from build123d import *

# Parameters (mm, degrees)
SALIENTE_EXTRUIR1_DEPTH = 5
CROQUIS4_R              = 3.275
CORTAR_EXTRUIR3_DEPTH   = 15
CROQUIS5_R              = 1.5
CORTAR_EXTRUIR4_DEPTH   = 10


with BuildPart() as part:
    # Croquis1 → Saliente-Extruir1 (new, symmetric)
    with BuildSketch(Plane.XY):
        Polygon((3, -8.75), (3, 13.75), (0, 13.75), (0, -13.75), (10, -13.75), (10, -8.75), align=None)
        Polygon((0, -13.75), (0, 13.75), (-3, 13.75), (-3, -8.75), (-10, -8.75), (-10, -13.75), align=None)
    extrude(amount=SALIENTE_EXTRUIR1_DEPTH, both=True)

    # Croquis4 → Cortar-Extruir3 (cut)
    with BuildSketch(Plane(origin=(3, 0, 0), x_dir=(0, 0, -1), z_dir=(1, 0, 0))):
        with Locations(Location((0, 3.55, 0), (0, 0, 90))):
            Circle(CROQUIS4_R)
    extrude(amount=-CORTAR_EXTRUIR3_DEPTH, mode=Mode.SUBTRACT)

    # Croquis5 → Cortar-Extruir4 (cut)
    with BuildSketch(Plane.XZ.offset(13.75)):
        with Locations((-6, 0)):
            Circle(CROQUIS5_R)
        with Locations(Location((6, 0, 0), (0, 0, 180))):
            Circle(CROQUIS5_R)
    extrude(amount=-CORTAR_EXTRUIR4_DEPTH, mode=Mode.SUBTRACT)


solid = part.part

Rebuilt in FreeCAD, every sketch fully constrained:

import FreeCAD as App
import Part
import Sketcher
from FreeCAD import Vector
Q = App.Units.Quantity

doc = App.newDocument("Part")
body = doc.addObject("PartDesign::Body", "Body")

sketch1 = body.newObject("Sketcher::SketchObject", "Sketch")
sketch1.AttachmentSupport = (doc.getObject("XY_Plane"), [""])
sketch1.MapMode = "FlatFace"
sketch1.addGeometry([
    Part.LineSegment(Vector(3, -9, 0), Vector(3, 14, 0)),
    Part.LineSegment(Vector(3, 14, 0), Vector(-3, 14, 0)),
    Part.LineSegment(Vector(-3, 14, 0), Vector(-3, -9, 0)),
    Part.LineSegment(Vector(-3, -9, 0), Vector(-10, -9, 0)),
    Part.LineSegment(Vector(-10, -9, 0), Vector(-10, -14, 0)),
    Part.LineSegment(Vector(-10, -14, 0), Vector(10, -14, 0)),
    Part.LineSegment(Vector(10, -14, 0), Vector(10, -9, 0)),
    Part.LineSegment(Vector(10, -9, 0), Vector(3, -9, 0)),
], False)
sketch1.addConstraint([
    Sketcher.Constraint("Coincident", 0, 2, 1, 1),
    Sketcher.Constraint("Coincident", 1, 2, 2, 1),
    Sketcher.Constraint("Coincident", 2, 2, 3, 1),
    Sketcher.Constraint("Coincident", 3, 2, 4, 1),
    Sketcher.Constraint("Coincident", 4, 2, 5, 1),
    Sketcher.Constraint("Coincident", 5, 2, 6, 1),
    Sketcher.Constraint("Coincident", 6, 2, 7, 1),
    Sketcher.Constraint("Coincident", 7, 2, 0, 1),
    Sketcher.Constraint("Vertical", 0),
    Sketcher.Constraint("Horizontal", 1),
    Sketcher.Constraint("Vertical", 2),
    Sketcher.Constraint("Horizontal", 3),
    Sketcher.Constraint("Vertical", 4),
    Sketcher.Constraint("Horizontal", 5),
    Sketcher.Constraint("Vertical", 6),
    Sketcher.Constraint("Horizontal", 7),
    Sketcher.Constraint("Symmetric", 3, 2, 6, 2, -2),
    Sketcher.Constraint("Equal", 3, 7),
    Sketcher.Constraint("DistanceX", 1, 2, 1, 1, Q("6 mm")),
    Sketcher.Constraint("DistanceX", 3, 2, 3, 1, Q("7 mm")),
    Sketcher.Constraint("DistanceY", 4, 2, 4, 1, Q("5 mm")),
    Sketcher.Constraint("DistanceY", 0, 1, 0, 2, Q("22.5 mm")),
    Sketcher.Constraint("DistanceY", -1, 1, 0, 2, Q("13.75 mm")),
])
pad1 = body.newObject("PartDesign::Pad", "Pad")
pad1.Profile = sketch1
pad1.Length = 10
pad1.Midplane = True

sketch2 = body.newObject("Sketcher::SketchObject", "Sketch001")
sketch2.AttachmentSupport = (doc.getObject("YZ_Plane"), [""])
sketch2.MapMode = "FlatFace"
sketch2.AttachmentOffset = App.Placement(Vector(0, 0, 3), App.Rotation())
sketch2.addGeometry(Part.Circle(Vector(3.5, 0, 0), Vector(0, 0, 1), 3.3), False)
sketch2.addConstraint([
    Sketcher.Constraint("PointOnObject", 0, 3, -1),
    Sketcher.Constraint("Diameter", 0, Q("6.55 mm")),
    Sketcher.Constraint("DistanceX", -1, 1, 0, 3, Q("3.55 mm")),
])
pocket1 = body.newObject("PartDesign::Pocket", "Pocket")
pocket1.Profile = sketch2
pocket1.Length = 15

sketch3 = body.newObject("Sketcher::SketchObject", "Sketch002")
sketch3.AttachmentSupport = (doc.getObject("XZ_Plane"), [""])
sketch3.MapMode = "FlatFace"
sketch3.AttachmentOffset = App.Placement(Vector(0, 0, 13.75), App.Rotation())
sketch3.addGeometry([
    Part.Circle(Vector(-6, 0, 0), Vector(0, 0, 1), 1.5),
    Part.Circle(Vector(6, 0, 0), Vector(0, 0, 1), 1.5),
], False)
sketch3.addConstraint([
    Sketcher.Constraint("Equal", 0, 1),
    Sketcher.Constraint("Symmetric", 0, 3, 1, 3, -1, 1),
    Sketcher.Constraint("PointOnObject", 0, 3, -1),
    Sketcher.Constraint("Diameter", 0, Q("3 mm")),
    Sketcher.Constraint("DistanceX", 0, 3, -1, 1, Q("6 mm")),
])
pocket2 = body.newObject("PartDesign::Pocket", "Pocket001")
pocket2.Profile = sketch3
pocket2.Length = 10

doc.recompute()
